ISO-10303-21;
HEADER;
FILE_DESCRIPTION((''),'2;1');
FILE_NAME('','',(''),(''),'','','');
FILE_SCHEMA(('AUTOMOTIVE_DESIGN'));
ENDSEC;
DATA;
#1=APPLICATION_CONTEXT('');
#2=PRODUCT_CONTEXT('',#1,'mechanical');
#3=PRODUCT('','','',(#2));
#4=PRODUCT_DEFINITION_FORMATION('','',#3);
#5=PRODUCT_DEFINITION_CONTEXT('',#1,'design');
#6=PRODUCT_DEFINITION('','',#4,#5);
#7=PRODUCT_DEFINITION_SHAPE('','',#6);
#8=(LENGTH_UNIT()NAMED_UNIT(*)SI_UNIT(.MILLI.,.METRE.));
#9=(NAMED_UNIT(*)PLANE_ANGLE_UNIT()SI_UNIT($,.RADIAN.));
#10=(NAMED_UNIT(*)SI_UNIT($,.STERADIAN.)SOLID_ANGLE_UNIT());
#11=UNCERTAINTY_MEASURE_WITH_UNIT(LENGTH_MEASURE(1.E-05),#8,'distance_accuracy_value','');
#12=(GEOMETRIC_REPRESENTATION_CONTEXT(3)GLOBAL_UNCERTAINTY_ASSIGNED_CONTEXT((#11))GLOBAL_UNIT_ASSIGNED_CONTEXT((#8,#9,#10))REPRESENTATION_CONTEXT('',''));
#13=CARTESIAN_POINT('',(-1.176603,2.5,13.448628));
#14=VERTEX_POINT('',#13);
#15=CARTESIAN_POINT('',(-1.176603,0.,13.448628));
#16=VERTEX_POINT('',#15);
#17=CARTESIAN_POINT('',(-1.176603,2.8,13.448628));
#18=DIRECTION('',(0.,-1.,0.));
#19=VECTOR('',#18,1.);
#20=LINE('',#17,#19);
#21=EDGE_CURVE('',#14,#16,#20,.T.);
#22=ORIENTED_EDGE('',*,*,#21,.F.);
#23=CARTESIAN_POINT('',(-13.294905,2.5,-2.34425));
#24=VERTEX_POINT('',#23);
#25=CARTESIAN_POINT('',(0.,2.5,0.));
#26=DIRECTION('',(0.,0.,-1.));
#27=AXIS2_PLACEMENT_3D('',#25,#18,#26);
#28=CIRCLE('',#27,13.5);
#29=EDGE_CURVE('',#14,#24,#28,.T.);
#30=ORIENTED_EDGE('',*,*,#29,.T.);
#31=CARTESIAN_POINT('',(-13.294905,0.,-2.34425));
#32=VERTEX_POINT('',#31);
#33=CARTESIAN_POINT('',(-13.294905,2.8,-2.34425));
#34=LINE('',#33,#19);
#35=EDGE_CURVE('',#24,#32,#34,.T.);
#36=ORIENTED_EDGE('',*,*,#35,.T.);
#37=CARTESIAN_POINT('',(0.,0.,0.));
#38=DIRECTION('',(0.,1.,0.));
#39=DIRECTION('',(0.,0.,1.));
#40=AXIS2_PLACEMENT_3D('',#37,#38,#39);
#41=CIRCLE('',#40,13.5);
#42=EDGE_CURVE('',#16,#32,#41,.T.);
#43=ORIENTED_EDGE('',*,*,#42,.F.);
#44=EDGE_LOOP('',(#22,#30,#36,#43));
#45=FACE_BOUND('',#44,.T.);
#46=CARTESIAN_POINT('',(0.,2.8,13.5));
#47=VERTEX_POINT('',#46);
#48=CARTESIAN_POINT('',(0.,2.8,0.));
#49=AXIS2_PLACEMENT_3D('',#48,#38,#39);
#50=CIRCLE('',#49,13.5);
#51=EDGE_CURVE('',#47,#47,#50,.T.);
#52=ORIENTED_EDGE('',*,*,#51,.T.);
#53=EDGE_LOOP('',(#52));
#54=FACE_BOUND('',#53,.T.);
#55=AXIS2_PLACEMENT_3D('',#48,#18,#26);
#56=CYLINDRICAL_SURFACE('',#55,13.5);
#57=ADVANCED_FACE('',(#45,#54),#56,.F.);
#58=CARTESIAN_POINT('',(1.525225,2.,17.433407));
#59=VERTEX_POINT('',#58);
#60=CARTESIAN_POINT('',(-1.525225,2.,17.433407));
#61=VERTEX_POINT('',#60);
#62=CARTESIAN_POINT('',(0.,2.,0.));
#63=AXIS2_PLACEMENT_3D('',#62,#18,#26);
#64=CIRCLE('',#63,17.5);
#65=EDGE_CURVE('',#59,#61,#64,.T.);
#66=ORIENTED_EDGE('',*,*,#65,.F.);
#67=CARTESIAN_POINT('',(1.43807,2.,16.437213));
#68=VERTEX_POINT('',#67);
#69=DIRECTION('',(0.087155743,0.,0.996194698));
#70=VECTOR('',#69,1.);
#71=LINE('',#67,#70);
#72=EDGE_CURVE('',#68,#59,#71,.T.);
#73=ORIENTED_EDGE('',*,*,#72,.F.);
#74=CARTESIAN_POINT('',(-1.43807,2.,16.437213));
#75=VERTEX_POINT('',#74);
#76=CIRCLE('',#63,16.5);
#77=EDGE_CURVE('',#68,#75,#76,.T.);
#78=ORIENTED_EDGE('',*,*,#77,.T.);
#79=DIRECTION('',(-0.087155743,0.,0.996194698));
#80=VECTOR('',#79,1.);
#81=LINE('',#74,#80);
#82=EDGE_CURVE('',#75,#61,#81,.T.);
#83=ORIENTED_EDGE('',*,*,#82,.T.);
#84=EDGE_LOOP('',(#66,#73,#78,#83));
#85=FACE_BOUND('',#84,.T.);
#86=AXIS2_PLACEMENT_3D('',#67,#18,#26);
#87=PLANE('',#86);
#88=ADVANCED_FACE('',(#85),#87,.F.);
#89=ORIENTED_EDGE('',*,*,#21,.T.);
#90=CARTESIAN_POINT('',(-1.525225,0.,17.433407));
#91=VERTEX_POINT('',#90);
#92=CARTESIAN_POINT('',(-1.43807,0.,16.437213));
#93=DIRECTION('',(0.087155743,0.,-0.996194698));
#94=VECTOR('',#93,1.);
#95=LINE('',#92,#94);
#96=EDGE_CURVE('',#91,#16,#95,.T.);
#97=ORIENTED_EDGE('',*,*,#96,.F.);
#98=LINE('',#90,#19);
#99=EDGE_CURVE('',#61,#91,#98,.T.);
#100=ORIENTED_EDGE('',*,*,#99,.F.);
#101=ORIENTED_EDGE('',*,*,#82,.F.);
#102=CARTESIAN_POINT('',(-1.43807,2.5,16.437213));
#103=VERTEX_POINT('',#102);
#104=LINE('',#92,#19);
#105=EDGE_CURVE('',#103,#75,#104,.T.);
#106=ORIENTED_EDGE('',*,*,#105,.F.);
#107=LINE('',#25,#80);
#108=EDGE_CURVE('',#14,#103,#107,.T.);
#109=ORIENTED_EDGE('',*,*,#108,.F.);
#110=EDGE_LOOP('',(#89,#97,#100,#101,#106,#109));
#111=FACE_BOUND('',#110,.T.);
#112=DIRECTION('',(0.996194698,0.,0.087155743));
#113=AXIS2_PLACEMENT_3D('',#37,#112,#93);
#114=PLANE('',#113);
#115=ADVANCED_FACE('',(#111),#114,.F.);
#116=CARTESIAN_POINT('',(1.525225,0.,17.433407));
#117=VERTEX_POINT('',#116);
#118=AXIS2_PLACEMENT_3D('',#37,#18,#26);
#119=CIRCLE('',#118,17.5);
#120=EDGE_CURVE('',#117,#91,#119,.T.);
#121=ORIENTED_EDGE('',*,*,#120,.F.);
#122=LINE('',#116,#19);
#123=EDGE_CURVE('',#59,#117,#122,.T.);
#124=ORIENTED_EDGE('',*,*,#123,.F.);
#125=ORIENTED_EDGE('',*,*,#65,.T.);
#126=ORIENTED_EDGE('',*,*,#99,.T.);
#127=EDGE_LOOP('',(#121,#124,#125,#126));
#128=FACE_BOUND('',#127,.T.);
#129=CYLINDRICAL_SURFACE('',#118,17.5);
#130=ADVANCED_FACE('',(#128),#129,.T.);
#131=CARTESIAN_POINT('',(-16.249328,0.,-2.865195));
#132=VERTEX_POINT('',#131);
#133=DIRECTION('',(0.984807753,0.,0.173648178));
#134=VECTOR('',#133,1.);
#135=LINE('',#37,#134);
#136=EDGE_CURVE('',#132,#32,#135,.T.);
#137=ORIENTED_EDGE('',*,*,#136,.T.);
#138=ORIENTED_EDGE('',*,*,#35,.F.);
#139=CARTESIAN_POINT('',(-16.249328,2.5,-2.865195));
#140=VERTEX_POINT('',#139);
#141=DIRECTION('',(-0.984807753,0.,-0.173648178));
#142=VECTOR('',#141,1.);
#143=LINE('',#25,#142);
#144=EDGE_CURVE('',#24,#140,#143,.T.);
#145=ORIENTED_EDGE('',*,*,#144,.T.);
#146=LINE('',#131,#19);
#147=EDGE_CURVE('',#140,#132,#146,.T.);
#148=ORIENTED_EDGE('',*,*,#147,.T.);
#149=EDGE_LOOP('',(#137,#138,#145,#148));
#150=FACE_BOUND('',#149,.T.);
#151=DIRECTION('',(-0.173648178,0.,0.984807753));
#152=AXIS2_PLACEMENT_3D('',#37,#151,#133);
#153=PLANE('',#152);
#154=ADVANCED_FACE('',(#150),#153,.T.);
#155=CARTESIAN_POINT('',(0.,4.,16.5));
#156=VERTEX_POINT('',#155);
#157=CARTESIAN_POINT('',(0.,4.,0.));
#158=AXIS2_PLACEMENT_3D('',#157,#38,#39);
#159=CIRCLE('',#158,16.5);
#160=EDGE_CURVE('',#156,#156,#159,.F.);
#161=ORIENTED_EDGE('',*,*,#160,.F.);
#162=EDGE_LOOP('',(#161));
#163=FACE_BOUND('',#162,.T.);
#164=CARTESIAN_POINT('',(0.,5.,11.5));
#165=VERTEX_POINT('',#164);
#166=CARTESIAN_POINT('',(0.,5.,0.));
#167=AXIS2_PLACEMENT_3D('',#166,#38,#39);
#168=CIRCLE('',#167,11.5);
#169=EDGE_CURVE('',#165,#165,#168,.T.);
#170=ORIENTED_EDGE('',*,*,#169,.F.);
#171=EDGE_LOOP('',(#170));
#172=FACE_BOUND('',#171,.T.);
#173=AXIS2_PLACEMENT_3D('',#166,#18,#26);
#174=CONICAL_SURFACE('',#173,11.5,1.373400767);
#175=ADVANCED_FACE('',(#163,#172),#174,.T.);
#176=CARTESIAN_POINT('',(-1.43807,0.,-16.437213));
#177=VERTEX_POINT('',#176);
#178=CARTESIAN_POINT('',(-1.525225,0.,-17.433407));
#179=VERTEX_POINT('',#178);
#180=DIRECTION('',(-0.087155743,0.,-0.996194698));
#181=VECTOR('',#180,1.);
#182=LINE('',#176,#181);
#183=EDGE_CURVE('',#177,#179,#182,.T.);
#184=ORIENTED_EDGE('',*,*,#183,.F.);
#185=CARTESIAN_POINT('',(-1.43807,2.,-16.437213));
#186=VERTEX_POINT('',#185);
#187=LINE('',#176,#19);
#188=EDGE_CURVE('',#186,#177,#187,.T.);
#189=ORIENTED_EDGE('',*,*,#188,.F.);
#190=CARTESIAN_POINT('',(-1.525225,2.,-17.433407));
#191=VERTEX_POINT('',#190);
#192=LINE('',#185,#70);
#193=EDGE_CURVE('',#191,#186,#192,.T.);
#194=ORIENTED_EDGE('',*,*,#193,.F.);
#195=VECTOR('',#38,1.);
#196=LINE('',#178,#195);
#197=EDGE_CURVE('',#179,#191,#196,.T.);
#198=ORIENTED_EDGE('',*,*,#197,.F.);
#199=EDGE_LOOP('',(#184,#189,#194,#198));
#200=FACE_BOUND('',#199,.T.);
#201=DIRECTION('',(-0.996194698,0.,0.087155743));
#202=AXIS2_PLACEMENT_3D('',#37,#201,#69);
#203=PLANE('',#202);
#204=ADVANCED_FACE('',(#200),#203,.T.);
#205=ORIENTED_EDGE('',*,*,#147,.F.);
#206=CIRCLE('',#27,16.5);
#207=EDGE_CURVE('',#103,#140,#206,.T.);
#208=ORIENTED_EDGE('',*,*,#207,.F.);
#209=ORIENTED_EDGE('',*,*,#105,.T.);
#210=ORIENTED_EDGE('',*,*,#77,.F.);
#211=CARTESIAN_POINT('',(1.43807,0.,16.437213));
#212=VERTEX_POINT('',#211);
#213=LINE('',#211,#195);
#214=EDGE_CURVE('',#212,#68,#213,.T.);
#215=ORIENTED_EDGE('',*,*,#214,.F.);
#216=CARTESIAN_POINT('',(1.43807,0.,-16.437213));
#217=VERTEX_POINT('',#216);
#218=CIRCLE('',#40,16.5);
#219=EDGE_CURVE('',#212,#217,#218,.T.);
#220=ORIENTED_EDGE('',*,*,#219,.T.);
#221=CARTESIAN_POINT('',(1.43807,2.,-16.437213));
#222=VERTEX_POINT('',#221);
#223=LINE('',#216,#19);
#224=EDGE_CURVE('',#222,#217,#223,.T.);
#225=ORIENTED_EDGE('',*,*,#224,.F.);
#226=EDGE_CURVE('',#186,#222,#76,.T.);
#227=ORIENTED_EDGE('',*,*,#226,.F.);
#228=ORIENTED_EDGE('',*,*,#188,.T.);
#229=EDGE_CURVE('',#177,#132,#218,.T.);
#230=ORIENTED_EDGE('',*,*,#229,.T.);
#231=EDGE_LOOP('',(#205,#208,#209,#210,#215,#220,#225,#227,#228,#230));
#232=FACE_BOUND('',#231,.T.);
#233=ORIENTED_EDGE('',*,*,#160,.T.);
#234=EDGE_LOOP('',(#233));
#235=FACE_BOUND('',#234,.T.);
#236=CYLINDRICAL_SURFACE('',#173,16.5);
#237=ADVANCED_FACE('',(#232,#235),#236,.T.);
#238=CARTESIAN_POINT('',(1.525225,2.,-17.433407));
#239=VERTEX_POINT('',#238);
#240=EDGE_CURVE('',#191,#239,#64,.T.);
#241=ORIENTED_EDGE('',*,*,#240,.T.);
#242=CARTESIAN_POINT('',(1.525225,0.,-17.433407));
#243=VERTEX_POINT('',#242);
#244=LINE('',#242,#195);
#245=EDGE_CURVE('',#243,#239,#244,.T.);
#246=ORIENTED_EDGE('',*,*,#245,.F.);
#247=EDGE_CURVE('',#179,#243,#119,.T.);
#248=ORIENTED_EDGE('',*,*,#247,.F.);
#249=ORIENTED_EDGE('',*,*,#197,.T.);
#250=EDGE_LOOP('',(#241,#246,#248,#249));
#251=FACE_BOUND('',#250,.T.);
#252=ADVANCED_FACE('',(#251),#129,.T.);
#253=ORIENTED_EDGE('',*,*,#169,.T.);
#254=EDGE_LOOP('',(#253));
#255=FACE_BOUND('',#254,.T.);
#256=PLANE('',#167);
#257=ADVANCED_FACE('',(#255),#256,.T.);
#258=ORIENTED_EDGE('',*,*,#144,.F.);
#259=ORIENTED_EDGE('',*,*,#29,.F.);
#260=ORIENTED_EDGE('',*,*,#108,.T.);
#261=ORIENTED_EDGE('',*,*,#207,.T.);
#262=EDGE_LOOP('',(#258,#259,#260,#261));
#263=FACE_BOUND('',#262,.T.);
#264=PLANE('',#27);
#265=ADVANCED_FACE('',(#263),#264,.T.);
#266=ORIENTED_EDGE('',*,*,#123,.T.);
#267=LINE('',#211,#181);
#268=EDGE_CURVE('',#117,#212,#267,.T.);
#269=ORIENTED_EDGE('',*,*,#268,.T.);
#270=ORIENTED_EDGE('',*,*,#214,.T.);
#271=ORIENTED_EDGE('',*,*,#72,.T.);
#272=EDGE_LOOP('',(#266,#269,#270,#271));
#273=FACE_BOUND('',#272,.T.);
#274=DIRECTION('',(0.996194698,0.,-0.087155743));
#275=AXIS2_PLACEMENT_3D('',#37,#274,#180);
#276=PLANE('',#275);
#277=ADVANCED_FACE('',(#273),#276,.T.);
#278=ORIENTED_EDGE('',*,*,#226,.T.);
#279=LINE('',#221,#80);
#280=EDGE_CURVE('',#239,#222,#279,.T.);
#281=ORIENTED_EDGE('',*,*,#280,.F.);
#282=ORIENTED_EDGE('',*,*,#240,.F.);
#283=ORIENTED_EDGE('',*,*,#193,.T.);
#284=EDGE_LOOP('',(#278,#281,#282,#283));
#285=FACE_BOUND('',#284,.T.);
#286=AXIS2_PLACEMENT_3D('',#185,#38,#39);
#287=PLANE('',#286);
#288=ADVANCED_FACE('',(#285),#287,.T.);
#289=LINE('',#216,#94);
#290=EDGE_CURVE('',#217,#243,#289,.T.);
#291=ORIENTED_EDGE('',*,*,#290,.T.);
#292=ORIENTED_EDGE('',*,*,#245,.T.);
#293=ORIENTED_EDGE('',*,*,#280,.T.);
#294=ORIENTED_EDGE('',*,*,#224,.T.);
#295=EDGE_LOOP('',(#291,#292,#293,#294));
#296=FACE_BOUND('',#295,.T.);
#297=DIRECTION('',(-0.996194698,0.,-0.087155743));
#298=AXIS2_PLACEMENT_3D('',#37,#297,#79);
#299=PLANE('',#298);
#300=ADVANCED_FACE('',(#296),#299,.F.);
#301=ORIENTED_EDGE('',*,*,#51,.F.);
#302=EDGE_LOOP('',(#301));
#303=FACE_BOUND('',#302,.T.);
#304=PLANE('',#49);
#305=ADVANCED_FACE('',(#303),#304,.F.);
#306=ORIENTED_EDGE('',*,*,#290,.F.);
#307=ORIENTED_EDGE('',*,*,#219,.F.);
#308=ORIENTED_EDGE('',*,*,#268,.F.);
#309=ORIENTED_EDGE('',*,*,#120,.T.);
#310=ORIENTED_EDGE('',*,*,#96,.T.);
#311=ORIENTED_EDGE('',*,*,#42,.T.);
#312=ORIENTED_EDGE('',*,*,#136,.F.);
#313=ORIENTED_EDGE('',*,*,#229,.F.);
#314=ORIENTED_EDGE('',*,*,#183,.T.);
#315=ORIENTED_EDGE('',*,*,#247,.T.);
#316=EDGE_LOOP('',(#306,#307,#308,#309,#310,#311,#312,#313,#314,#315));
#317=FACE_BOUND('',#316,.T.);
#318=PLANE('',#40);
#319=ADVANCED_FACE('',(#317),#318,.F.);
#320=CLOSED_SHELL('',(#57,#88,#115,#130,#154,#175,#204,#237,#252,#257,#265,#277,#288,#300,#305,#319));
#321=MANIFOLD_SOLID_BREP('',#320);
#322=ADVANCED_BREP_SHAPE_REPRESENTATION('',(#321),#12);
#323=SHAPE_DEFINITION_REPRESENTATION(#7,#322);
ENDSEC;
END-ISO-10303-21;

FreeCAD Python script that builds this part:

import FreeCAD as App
import Part
import Sketcher
Q = App.Units.Quantity


def edges_at(feature, points):
    """Names of the edges that pass closest to the given points."""
    edges = feature.Shape.Edges
    near = lambda p: min(range(len(edges)), key=lambda i: edges[i].distToShape(Part.Vertex(*p))[0])
    return sorted({f"Edge{near(p) + 1}" for p in points})


def add_polygon(sketch, points):
    """Adds a closed chain of lines whose ends are joined by coincident constraints."""
    first, n = sketch.GeometryCount, len(points)
    for a, b in zip(points, points[1:] + points[:1]):
        sketch.addGeometry(Part.LineSegment(App.Vector(*a, 0), App.Vector(*b, 0)), False)
    for i in range(n):
        sketch.addConstraint(Sketcher.Constraint("Coincident", first + i, 2, first + (i + 1) % n, 1))

doc = App.newDocument("Part")
params = doc.addObject("Spreadsheet::Sheet", "Params")
for row, (alias, value) in enumerate([
    ("sketch1_diameter", "33 mm"),
    ("pad1_length", "5 mm"),
    ("chamfer_size", "1 mm"),
    ("chamfer_size2", "5 mm"),
    ("sketch2_diameter", "27 mm"),
    ("pocket1_length", "2.8 mm"),
    ("sketch3_width", "2 mm"),
    ("sketch3_height", "1 mm"),
    ("revolution_angle", "5 deg"),
    ("sketch4_width", "2 mm"),
    ("sketch4_height", "1 mm"),
    ("revolution2_angle", "5 deg"),
    ("sketch5_width", "2 mm"),
    ("sketch5_height", "1 mm"),
    ("revolution3_angle", "5 deg"),
    ("sketch6_width", "2 mm"),
    ("sketch6_height", "1 mm"),
    ("revolution4_angle", "5 deg"),
    ("sketch7_width", "16.5 mm"),
    ("sketch7_height", "2.5 mm"),
    ("groove_angle", "85 deg"),
    ("sketch8_width", "16.5 mm"),
    ("sketch8_height", "2.5 mm"),
    ("groove2_angle", "10 deg"),
], start=1):
    params.set(f"A{row}", alias)
    params.set(f"B{row}", "=" + value)
    params.setAlias(f"B{row}", alias)

body = doc.addObject("PartDesign::Body", "Body")

sketch1 = doc.addObject("Sketcher::SketchObject", "Sketch")
body.addObject(sketch1)
sketch1.AttachmentSupport = (doc.XZ_Plane, [""])
sketch1.MapMode = "FlatFace"
sketch1.addGeometry(Part.Circle(App.Vector(0, 0, 0), App.Vector(0, 0, 1), 16), False)
sketch1.addConstraint([
    Sketcher.Constraint("Coincident", 0, 3, -1, 1),
    Sketcher.Constraint("Diameter", 0, Q("33 mm")),
])
sketch1.setExpression("Constraints[1]", "Params.sketch1_diameter")
pad1 = doc.addObject("PartDesign::Pad", "Pad")
body.addObject(pad1)
pad1.Profile = sketch1
pad1.setExpression("Length", "Params.pad1_length")
pad1.Reversed = True
doc.recompute()

chamfer = doc.addObject("PartDesign::Chamfer", "Chamfer")
body.addObject(chamfer)
chamfer.Base = (pad1, edges_at(pad1, [(0, 5, -16.5)]))
chamfer.ChamferType = "Two distances"
chamfer.setExpression("Size", "Params.chamfer_size")
chamfer.setExpression("Size2", "Params.chamfer_size2")

sketch2 = doc.addObject("Sketcher::SketchObject", "Sketch001")
body.addObject(sketch2)
sketch2.AttachmentSupport = (doc.XZ_Plane, [""])
sketch2.MapMode = "FlatFace"
sketch2.addGeometry(Part.Circle(App.Vector(0, 0, 0), App.Vector(0, 0, 1), 14), False)
sketch2.addConstraint([
    Sketcher.Constraint("Coincident", 0, 3, -1, 1),
    Sketcher.Constraint("Diameter", 0, Q("27 mm")),
])
sketch2.setExpression("Constraints[1]", "Params.sketch2_diameter")
pocket1 = doc.addObject("PartDesign::Pocket", "Pocket")
body.addObject(pocket1)
pocket1.Profile = sketch2
pocket1.setExpression("Length", "Params.pocket1_length")

sketch3 = doc.addObject("Sketcher::SketchObject", "Sketch002")
body.addObject(sketch3)
sketch3.AttachmentSupport = (doc.YZ_Plane, [""])
sketch3.MapMode = "FlatFace"
add_polygon(sketch3, [(2, -16.5), (0, -16.5), (0, -17.5), (2, -17.5)])
sketch3.addConstraint([
    Sketcher.Constraint("Horizontal", 0),
    Sketcher.Constraint("Vertical", 1),
    Sketcher.Constraint("Horizontal", 2),
    Sketcher.Constraint("Vertical", 3),
    Sketcher.Constraint("PointOnObject", 0, 2, -2),
    Sketcher.Constraint("DistanceX", 0, 2, 0, 1, Q("2 mm")),
    Sketcher.Constraint("DistanceY", 1, 2, 1, 1, Q("1 mm")),
    Sketcher.Constraint("DistanceY", 0, 2, -1, 1, Q("16.5 mm")),
])
sketch3.setExpression("Constraints[9]", "Params.sketch3_width")
sketch3.setExpression("Constraints[10]", "Params.sketch3_height")
revolution = doc.addObject("PartDesign::Revolution", "Revolution")
body.addObject(revolution)
revolution.Profile = sketch3
revolution.ReferenceAxis = (sketch3, ["H_Axis"])
revolution.setExpression("Angle", "Params.revolution_angle")

sketch4 = doc.addObject("Sketcher::SketchObject", "Sketch003")
body.addObject(sketch4)
sketch4.AttachmentSupport = (doc.YZ_Plane, [""])
sketch4.MapMode = "FlatFace"
add_polygon(sketch4, [(2, -16.5), (0, -16.5), (0, -17.5), (2, -17.5)])
sketch4.addConstraint([
    Sketcher.Constraint("Horizontal", 0),
    Sketcher.Constraint("Vertical", 1),
    Sketcher.Constraint("Horizontal", 2),
    Sketcher.Constraint("Vertical", 3),
    Sketcher.Constraint("PointOnObject", 0, 2, -2),
    Sketcher.Constraint("DistanceX", 0, 2, 0, 1, Q("2 mm")),
    Sketcher.Constraint("DistanceY", 1, 2, 1, 1, Q("1 mm")),
    Sketcher.Constraint("DistanceY", 0, 2, -1, 1, Q("16.5 mm")),
])
sketch4.setExpression("Constraints[9]", "Params.sketch4_width")
sketch4.setExpression("Constraints[10]", "Params.sketch4_height")
revolution2 = doc.addObject("PartDesign::Revolution", "Revolution001")
body.addObject(revolution2)
revolution2.Profile = sketch4
revolution2.ReferenceAxis = (sketch4, ["H_Axis"])
revolution2.setExpression("Angle", "Params.revolution2_angle")
revolution2.Reversed = True

sketch5 = doc.addObject("Sketcher::SketchObject", "Sketch004")
body.addObject(sketch5)
sketch5.AttachmentSupport = (doc.YZ_Plane, [""])
sketch5.MapMode = "FlatFace"
add_polygon(sketch5, [(2, 17.5), (0, 17.5), (0, 16.5), (2, 16.5)])
sketch5.addConstraint([
    Sketcher.Constraint("Horizontal", 0),
    Sketcher.Constraint("Vertical", 1),
    Sketcher.Constraint("Horizontal", 2),
    Sketcher.Constraint("Vertical", 3),
    Sketcher.Constraint("PointOnObject", 0, 2, -2),
    Sketcher.Constraint("DistanceX", 0, 2, 0, 1, Q("2 mm")),
    Sketcher.Constraint("DistanceY", 1, 2, 1, 1, Q("1 mm")),
    Sketcher.Constraint("DistanceY", -1, 1, 0, 2, Q("17.5 mm")),
])
sketch5.setExpression("Constraints[9]", "Params.sketch5_width")
sketch5.setExpression("Constraints[10]", "Params.sketch5_height")
revolution3 = doc.addObject("PartDesign::Revolution", "Revolution002")
body.addObject(revolution3)
revolution3.Profile = sketch5
revolution3.ReferenceAxis = (sketch5, ["H_Axis"])
revolution3.setExpression("Angle", "Params.revolution3_angle")

sketch6 = doc.addObject("Sketcher::SketchObject", "Sketch005")
body.addObject(sketch6)
sketch6.AttachmentSupport = (doc.YZ_Plane, [""])
sketch6.MapMode = "FlatFace"
add_polygon(sketch6, [(2, 17.5), (0, 17.5), (0, 16.5), (2, 16.5)])
sketch6.addConstraint([
    Sketcher.Constraint("Horizontal", 0),
    Sketcher.Constraint("Vertical", 1),
    Sketcher.Constraint("Horizontal", 2),
    Sketcher.Constraint("Vertical", 3),
    Sketcher.Constraint("PointOnObject", 0, 2, -2),
    Sketcher.Constraint("DistanceX", 0, 2, 0, 1, Q("2 mm")),
    Sketcher.Constraint("DistanceY", 1, 2, 1, 1, Q("1 mm")),
    Sketcher.Constraint("DistanceY", -1, 1, 0, 2, Q("17.5 mm")),
])
sketch6.setExpression("Constraints[9]", "Params.sketch6_width")
sketch6.setExpression("Constraints[10]", "Params.sketch6_height")
revolution4 = doc.addObject("PartDesign::Revolution", "Revolution003")
body.addObject(revolution4)
revolution4.Profile = sketch6
revolution4.ReferenceAxis = (sketch6, ["H_Axis"])
revolution4.setExpression("Angle", "Params.revolution4_angle")
revolution4.Reversed = True

sketch7 = doc.addObject("Sketcher::SketchObject", "Sketch006")
body.addObject(sketch7)
sketch7.AttachmentSupport = (doc.XY_Plane, [""])
sketch7.MapMode = "FlatFace"
add_polygon(sketch7, [(-16.5, 2.5), (-16.5, 0), (0, 0), (0, 2.5)])
sketch7.addConstraint([
    Sketcher.Constraint("Vertical", 0),
    Sketcher.Constraint("Horizontal", 1),
    Sketcher.Constraint("Vertical", 2),
    Sketcher.Constraint("Horizontal", 3),
    Sketcher.Constraint("Coincident", 1, 2, -1, 1),
    Sketcher.Constraint("DistanceX", 1, 1, 1, 2, Q("16.5 mm")),
    Sketcher.Constraint("DistanceY", 0, 2, 0, 1, Q("2.5 mm")),
])
sketch7.setExpression("Constraints[9]", "Params.sketch7_width")
sketch7.setExpression("Constraints[10]", "Params.sketch7_height")
groove = doc.addObject("PartDesign::Groove", "Groove")
body.addObject(groove)
groove.Profile = sketch7
groove.ReferenceAxis = (sketch7, ["V_Axis"])
groove.setExpression("Angle", "Params.groove_angle")

sketch8 = doc.addObject("Sketcher::SketchObject", "Sketch007")
body.addObject(sketch8)
sketch8.AttachmentSupport = (doc.XY_Plane, [""])
sketch8.MapMode = "FlatFace"
add_polygon(sketch8, [(-16.5, 2.5), (-16.5, 0), (0, 0), (0, 2.5)])
sketch8.addConstraint([
    Sketcher.Constraint("Vertical", 0),
    Sketcher.Constraint("Horizontal", 1),
    Sketcher.Constraint("Vertical", 2),
    Sketcher.Constraint("Horizontal", 3),
    Sketcher.Constraint("Coincident", 1, 2, -1, 1),
    Sketcher.Constraint("DistanceX", 1, 1, 1, 2, Q("16.5 mm")),
    Sketcher.Constraint("DistanceY", 0, 2, 0, 1, Q("2.5 mm")),
])
sketch8.setExpression("Constraints[9]", "Params.sketch8_width")
sketch8.setExpression("Constraints[10]", "Params.sketch8_height")
groove2 = doc.addObject("PartDesign::Groove", "Groove001")
body.addObject(groove2)
groove2.Profile = sketch8
groove2.ReferenceAxis = (sketch8, ["V_Axis"])
groove2.setExpression("Angle", "Params.groove2_angle")
groove2.Reversed = True

doc.recompute()
